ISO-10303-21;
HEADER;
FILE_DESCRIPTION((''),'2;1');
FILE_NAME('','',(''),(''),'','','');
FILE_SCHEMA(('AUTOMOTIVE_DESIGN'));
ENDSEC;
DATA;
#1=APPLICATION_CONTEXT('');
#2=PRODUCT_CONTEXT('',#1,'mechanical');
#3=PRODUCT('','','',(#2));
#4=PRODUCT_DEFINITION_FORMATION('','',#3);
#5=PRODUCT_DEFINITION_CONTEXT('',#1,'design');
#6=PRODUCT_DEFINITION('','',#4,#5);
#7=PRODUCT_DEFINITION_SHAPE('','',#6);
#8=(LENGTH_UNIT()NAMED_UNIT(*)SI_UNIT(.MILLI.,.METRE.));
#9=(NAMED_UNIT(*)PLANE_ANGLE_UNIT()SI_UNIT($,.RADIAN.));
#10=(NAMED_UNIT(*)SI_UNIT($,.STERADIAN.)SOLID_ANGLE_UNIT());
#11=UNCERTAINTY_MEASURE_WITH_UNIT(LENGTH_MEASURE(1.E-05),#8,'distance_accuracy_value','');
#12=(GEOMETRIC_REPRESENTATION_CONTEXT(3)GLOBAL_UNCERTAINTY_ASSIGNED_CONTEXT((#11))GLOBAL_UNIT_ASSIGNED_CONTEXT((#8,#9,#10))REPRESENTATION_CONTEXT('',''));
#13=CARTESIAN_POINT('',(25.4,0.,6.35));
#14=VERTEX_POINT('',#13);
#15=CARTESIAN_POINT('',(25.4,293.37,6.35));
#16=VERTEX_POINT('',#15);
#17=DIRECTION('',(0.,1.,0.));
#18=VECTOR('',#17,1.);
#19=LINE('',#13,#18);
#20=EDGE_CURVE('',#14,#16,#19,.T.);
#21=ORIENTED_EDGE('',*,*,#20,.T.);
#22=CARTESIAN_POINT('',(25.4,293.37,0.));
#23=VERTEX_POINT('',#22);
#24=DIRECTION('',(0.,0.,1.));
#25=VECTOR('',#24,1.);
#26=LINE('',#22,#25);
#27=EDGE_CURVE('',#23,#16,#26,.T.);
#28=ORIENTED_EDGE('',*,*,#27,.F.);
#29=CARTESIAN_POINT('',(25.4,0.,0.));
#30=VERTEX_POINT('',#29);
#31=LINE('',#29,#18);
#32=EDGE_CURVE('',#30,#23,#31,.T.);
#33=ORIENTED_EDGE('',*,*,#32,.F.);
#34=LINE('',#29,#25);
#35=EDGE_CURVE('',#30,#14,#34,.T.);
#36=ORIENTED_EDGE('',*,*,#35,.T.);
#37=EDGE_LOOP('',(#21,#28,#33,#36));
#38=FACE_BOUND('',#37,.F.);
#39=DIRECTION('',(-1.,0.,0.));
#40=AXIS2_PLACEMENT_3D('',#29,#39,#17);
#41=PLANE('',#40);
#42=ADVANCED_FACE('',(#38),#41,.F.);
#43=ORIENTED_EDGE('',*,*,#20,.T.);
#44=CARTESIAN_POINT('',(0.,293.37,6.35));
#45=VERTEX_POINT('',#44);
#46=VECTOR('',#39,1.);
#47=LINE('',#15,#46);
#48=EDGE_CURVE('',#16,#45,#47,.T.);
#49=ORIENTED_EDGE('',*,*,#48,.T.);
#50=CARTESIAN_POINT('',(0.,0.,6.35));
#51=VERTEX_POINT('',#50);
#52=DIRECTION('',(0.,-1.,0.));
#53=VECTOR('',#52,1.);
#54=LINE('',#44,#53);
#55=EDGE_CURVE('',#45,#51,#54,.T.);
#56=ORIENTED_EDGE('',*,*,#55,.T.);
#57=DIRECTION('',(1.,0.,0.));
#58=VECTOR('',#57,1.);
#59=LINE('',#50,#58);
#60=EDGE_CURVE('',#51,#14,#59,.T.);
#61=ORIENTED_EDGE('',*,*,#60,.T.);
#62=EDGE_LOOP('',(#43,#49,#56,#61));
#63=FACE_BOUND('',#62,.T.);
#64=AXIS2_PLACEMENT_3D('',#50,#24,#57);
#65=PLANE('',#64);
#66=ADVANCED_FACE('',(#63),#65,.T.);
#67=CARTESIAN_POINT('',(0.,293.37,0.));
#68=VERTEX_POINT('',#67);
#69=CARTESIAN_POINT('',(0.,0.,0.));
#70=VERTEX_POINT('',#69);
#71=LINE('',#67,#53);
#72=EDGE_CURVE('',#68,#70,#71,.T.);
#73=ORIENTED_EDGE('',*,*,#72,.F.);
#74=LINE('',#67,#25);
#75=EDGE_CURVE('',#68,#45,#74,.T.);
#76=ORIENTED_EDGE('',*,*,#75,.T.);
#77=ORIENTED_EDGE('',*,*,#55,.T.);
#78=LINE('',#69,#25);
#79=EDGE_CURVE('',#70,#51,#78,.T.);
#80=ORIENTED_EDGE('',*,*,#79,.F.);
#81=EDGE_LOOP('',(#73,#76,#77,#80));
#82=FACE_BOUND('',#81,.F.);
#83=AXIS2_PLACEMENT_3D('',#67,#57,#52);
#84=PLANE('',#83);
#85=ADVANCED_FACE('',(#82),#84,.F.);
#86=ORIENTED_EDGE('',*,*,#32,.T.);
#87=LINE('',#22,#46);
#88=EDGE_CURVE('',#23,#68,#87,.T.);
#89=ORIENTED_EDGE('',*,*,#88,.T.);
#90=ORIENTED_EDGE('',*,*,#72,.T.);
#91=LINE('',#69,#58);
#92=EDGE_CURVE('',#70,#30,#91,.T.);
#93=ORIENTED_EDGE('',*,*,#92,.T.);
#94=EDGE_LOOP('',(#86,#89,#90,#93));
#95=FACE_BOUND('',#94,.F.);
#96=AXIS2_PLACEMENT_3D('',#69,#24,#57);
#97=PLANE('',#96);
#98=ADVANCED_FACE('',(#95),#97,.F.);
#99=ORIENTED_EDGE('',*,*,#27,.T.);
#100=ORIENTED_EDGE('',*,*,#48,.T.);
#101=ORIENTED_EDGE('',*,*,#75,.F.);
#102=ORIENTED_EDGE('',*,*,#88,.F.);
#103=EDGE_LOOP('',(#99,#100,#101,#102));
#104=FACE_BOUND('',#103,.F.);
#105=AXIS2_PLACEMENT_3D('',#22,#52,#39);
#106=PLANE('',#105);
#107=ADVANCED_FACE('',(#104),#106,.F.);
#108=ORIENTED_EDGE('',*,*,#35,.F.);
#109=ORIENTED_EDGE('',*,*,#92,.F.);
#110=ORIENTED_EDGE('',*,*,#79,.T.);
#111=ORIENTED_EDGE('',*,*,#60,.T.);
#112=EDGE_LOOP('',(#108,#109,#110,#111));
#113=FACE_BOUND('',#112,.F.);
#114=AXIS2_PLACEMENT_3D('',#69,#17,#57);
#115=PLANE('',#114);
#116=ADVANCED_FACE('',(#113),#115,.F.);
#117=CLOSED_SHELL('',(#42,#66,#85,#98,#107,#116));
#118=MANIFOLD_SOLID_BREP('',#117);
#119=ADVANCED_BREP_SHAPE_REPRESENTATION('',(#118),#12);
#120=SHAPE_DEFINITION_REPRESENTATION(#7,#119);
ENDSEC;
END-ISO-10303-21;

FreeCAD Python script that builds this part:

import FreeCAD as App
import Part
import Sketcher
Q = App.Units.Quantity

doc = App.newDocument("Part")
params = doc.addObject("Spreadsheet::Sheet", "Params")
for row, (alias, value) in enumerate([
    ("sketch1_width", "1 in"),
    ("sketch1_height", "11.55 in"),
    ("pad1_length", "0.25 in"),
], start=1):
    params.set(f"A{row}", alias)
    params.set(f"B{row}", "=" + value)
    params.setAlias(f"B{row}", alias)

body = doc.addObject("PartDesign::Body", "Body")

sketch1 = body.newObject("Sketcher::SketchObject", "Sketch")
sketch1.AttachmentSupport = (doc.getObject("XY_Plane"), [""])
sketch1.MapMode = "FlatFace"
sketch1.addGeometry([
    Part.LineSegment(App.Vector(0, 293, 0), App.Vector(0, 0, 0)),
    Part.LineSegment(App.Vector(0, 0, 0), App.Vector(25, 0, 0)),
    Part.LineSegment(App.Vector(25, 0, 0), App.Vector(25, 293, 0)),
    Part.LineSegment(App.Vector(25, 293, 0), App.Vector(0, 293, 0)),
], False)
sketch1.addConstraint([
    Sketcher.Constraint("Coincident", 0, 2, 1, 1),
    Sketcher.Constraint("Coincident", 1, 2, 2, 1),
    Sketcher.Constraint("Coincident", 2, 2, 3, 1),
    Sketcher.Constraint("Coincident", 3, 2, 0, 1),
    Sketcher.Constraint("Vertical", 0),
    Sketcher.Constraint("Horizontal", 1),
    Sketcher.Constraint("Vertical", 2),
    Sketcher.Constraint("Horizontal", 3),
    Sketcher.Constraint("Coincident", 0, 2, -1, 1),
    Sketcher.Constraint("DistanceX", 1, 1, 1, 2, Q("1 in")),
    Sketcher.Constraint("DistanceY", 0, 2, 0, 1, Q("11.55 in")),
])
sketch1.setExpression("Constraints[9]", "Params.sketch1_width")
sketch1.setExpression("Constraints[10]", "Params.sketch1_height")
pad1 = body.newObject("PartDesign::Pad", "Pad")
pad1.Profile = sketch1
pad1.setExpression("Length", "Params.pad1_length")

doc.recompute()
